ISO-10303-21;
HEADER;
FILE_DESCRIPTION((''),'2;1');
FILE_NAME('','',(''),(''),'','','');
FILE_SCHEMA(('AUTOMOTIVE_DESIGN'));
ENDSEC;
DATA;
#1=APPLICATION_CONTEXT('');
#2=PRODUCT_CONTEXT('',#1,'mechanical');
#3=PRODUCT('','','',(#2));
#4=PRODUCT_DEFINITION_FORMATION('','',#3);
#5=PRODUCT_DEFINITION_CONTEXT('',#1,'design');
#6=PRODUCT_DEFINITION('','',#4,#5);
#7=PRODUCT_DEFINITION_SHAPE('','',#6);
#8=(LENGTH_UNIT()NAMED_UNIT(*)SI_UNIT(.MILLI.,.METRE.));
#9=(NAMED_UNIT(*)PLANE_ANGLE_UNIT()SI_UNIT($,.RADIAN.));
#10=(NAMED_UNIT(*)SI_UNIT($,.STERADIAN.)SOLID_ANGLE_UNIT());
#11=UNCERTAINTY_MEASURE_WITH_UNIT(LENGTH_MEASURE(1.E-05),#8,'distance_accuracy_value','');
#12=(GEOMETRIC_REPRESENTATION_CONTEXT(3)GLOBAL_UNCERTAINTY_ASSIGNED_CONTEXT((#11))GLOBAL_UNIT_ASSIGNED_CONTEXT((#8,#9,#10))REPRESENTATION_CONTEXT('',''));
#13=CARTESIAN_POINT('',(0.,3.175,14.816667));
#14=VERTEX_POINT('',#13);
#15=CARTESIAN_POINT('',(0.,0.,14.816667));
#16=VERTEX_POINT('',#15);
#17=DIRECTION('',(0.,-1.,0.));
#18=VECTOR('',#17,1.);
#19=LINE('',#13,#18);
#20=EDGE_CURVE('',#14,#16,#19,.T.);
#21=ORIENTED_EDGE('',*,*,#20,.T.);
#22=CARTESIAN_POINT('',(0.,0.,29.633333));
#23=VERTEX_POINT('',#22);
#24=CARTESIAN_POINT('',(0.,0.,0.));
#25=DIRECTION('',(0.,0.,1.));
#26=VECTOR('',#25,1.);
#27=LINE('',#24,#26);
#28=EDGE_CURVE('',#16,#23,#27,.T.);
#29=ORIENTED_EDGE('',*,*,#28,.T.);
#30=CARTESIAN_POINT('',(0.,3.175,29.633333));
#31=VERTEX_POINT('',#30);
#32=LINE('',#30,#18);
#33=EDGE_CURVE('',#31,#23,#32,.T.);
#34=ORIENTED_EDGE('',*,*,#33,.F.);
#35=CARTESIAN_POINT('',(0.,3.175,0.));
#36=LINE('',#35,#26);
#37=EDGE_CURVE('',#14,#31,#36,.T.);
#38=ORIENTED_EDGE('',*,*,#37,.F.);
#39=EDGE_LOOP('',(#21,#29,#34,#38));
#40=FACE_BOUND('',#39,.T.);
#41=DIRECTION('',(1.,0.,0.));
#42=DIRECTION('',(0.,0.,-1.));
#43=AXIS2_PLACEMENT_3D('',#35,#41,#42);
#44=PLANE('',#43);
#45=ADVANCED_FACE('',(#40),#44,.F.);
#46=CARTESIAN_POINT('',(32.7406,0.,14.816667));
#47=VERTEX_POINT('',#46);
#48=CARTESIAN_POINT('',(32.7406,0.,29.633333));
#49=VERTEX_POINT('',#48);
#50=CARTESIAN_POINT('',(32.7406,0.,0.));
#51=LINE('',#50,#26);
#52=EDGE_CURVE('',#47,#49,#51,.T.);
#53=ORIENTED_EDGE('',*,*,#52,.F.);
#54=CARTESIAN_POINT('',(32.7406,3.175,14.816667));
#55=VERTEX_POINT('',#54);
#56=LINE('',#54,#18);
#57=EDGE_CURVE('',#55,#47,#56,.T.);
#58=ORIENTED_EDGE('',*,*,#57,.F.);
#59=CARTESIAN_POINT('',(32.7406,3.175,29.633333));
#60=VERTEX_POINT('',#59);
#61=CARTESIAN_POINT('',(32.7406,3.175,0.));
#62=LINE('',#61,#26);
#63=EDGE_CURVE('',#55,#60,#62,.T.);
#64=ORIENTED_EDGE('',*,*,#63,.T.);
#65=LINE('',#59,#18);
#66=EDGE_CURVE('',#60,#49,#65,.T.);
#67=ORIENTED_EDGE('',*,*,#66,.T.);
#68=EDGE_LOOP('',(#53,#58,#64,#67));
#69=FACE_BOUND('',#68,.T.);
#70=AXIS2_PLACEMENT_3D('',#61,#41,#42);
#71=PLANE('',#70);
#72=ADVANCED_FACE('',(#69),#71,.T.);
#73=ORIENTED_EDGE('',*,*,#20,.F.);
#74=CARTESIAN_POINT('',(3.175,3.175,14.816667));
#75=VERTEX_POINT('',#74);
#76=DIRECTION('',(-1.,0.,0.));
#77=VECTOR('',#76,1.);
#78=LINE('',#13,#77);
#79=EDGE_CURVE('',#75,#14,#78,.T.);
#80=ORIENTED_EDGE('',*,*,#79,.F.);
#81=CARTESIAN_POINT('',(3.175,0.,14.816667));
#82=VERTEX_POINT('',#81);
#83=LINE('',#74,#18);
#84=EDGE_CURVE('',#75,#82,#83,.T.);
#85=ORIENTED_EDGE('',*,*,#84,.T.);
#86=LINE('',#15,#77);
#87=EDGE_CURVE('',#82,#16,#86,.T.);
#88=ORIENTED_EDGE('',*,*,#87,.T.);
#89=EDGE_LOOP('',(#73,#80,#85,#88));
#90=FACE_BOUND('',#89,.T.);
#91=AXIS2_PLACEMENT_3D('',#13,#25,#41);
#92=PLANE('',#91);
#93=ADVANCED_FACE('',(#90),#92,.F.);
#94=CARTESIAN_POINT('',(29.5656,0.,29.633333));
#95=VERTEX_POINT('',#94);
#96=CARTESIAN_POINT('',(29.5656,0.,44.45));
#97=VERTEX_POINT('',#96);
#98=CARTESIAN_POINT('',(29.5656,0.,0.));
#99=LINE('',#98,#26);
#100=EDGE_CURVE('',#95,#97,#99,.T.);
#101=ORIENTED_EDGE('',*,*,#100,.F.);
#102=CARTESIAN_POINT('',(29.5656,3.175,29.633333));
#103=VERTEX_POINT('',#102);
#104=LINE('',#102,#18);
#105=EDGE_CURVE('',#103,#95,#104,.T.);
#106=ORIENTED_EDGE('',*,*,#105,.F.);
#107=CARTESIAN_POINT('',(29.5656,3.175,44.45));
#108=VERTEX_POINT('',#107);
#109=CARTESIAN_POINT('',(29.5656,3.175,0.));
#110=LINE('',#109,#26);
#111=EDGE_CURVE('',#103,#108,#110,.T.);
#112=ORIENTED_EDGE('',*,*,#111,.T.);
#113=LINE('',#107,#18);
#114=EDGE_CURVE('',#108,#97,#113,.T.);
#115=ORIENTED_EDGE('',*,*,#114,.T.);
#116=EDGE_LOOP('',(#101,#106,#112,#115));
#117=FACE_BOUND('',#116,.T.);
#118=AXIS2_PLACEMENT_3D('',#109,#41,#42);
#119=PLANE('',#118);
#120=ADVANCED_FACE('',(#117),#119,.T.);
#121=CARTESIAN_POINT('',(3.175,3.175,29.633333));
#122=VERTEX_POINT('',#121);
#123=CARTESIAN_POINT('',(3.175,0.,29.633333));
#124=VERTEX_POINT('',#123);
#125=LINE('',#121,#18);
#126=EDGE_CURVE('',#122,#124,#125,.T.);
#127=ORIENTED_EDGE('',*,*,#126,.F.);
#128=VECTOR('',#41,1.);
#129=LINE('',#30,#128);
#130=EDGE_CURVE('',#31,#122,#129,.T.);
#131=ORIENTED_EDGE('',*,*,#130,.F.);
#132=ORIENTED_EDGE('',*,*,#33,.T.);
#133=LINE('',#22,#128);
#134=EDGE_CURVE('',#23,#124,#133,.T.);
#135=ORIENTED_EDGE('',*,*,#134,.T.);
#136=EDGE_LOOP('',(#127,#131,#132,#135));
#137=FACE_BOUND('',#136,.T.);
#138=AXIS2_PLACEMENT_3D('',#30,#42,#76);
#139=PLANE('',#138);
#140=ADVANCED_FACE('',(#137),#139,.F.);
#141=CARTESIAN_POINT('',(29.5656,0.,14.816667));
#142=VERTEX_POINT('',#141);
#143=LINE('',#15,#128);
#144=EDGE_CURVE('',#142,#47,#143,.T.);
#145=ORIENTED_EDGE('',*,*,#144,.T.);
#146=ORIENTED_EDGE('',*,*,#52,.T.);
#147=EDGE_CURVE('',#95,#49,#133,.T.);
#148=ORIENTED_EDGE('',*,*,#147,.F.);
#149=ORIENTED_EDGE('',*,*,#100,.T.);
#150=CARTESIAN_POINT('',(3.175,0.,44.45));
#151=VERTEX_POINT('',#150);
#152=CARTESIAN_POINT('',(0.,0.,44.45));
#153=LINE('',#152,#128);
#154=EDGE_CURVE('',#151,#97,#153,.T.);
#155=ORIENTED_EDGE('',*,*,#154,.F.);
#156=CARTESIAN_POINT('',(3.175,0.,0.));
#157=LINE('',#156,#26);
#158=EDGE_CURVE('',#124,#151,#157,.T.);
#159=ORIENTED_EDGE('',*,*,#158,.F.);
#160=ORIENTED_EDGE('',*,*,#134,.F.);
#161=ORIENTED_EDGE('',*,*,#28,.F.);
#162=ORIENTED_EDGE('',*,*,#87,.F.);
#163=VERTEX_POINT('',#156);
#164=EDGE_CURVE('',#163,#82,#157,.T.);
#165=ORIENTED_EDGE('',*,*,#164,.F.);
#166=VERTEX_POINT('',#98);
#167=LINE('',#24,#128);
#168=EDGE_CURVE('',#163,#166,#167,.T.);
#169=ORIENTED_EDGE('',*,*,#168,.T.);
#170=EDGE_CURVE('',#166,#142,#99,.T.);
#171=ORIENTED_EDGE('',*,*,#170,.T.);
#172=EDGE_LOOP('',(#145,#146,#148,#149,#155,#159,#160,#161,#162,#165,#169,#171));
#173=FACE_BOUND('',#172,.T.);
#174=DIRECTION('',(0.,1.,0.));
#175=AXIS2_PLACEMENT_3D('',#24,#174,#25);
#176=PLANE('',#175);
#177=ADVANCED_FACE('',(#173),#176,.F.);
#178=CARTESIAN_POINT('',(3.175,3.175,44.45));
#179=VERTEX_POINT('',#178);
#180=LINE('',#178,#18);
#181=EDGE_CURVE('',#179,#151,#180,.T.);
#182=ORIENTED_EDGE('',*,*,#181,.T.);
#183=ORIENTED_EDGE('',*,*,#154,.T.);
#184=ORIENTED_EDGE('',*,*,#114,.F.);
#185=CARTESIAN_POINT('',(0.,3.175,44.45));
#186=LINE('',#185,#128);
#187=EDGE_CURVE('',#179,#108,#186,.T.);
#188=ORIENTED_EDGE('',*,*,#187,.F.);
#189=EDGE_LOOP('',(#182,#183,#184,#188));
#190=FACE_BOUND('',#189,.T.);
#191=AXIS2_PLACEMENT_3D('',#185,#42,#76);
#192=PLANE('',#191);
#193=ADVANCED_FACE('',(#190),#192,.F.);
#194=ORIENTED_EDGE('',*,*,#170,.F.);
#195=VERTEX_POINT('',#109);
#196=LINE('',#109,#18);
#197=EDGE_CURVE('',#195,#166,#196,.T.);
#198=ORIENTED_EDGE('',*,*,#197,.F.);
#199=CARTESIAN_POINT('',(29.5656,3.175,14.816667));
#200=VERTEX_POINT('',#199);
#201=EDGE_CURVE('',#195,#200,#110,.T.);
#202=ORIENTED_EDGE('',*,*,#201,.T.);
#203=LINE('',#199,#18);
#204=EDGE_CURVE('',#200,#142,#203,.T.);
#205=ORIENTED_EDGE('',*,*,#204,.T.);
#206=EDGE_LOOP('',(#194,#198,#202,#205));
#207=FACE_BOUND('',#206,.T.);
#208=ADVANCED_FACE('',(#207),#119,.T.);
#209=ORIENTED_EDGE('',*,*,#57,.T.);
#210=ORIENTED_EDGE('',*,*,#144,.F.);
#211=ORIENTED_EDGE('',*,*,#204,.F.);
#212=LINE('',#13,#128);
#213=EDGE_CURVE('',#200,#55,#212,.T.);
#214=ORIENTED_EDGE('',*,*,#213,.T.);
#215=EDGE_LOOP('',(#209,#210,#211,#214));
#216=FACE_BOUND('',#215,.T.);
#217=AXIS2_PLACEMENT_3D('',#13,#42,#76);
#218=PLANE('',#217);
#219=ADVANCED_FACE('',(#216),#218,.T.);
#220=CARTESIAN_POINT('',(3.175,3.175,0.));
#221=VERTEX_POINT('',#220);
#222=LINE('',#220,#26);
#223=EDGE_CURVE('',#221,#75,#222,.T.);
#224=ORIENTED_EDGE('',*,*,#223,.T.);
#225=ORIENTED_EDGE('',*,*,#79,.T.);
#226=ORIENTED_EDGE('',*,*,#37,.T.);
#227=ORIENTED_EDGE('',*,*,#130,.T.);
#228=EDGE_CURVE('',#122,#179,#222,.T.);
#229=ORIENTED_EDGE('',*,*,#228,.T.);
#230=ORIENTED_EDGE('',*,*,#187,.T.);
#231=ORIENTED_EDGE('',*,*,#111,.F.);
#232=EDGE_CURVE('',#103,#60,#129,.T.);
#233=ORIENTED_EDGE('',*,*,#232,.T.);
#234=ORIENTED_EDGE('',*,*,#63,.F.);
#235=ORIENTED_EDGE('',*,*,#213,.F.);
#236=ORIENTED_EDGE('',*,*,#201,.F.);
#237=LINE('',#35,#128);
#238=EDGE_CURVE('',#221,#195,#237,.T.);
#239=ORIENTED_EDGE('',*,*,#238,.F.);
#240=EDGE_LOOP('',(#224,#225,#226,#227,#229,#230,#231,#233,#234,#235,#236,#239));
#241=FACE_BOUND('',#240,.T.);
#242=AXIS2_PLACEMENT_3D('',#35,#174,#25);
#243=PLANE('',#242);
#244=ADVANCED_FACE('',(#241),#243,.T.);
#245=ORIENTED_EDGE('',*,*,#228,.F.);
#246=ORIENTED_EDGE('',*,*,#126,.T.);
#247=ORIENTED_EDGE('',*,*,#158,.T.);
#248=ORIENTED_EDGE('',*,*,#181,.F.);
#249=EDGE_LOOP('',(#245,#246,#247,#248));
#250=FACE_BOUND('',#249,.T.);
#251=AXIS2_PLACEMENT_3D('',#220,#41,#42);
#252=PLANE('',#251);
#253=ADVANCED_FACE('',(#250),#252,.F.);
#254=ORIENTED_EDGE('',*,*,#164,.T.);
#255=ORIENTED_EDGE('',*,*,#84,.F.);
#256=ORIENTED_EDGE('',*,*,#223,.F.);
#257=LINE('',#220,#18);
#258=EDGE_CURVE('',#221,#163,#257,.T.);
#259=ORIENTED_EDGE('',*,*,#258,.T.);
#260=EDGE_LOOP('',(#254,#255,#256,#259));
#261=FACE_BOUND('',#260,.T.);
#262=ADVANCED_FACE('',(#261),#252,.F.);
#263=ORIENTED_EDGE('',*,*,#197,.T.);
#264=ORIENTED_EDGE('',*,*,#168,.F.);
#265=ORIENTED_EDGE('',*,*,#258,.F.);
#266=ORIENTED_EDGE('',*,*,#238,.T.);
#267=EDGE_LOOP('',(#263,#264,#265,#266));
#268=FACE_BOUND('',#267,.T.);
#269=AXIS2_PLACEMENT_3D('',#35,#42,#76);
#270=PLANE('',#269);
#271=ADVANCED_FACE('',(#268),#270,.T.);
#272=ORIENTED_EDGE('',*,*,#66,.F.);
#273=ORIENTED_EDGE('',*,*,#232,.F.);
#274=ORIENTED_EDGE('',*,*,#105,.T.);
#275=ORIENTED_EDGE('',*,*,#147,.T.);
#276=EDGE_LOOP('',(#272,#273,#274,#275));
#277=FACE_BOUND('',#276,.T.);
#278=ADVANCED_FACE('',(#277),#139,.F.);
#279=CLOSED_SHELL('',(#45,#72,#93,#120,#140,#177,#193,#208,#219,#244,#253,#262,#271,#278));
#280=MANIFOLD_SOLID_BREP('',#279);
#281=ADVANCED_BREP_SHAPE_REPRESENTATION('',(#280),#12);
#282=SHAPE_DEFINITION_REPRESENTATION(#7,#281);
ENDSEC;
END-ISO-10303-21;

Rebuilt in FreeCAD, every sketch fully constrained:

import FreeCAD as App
import Part
import Sketcher
from FreeCAD import Vector
Q = App.Units.Quantity


def add_polygon(sketch, points):
    """Adds a closed chain of lines whose ends are joined by coincident constraints."""
    first, n = sketch.GeometryCount, len(points)
    for a, b in zip(points, points[1:] + points[:1]):
        sketch.addGeometry(Part.LineSegment(App.Vector(*a, 0), App.Vector(*b, 0)), False)
    for i in range(n):
        sketch.addConstraint(Sketcher.Constraint("Coincident", first + i, 2, first + (i + 1) % n, 1))

doc = App.newDocument("Part")
body = doc.addObject("PartDesign::Body", "Body")

# Sketch on XZ plane
sketch1 = body.newObject("Sketcher::SketchObject", "Sketch")
sketch1.AttachmentSupport = (doc.getObject("XZ_Plane"), [""])
sketch1.MapMode = "FlatFace"
add_polygon(sketch1, [(3.2, 0), (3.2, 14.8), (0, 14.8), (0, 29.6), (3.2, 29.6), (3.2, 44.5), (29.6, 44.5), (29.6, 29.6), (32.7, 29.6), (32.7, 14.8), (29.6, 14.8), (29.6, 0)])  # lines 0-11
sketch1.addConstraint([
    Sketcher.Constraint("Vertical", 0),
    Sketcher.Constraint("Horizontal", 1),
    Sketcher.Constraint("Vertical", 2),
    Sketcher.Constraint("Horizontal", 3),
    Sketcher.Constraint("Vertical", 4),
    Sketcher.Constraint("Horizontal", 5),
    Sketcher.Constraint("Vertical", 6),
    Sketcher.Constraint("Horizontal", 7),
    Sketcher.Constraint("Vertical", 8),
    Sketcher.Constraint("Horizontal", 9),
    Sketcher.Constraint("Vertical", 10),
    Sketcher.Constraint("Horizontal", 11),
    Sketcher.Constraint("PointOnObject", 1, 2, -2),
    Sketcher.Constraint("PointOnObject", 10, 2, -1),
    Sketcher.Constraint("Horizontal", 3, 2, 6, 2),
    Sketcher.Constraint("Horizontal", 1, 2, 8, 2),
    Sketcher.Constraint("Vertical", 0, 2, 3, 2),
    Sketcher.Constraint("Vertical", 6, 2, 9, 2),
    Sketcher.Constraint("Equal", 3, 7),
    Sketcher.Constraint("Equal", 0, 2),
    Sketcher.Constraint("Equal", 2, 4),
    Sketcher.Constraint("DistanceX", 1, 2, 1, 1, Q("0.125 in")),
    Sketcher.Constraint("DistanceX", 5, 1, 5, 2, Q("1.039 in")),
    Sketcher.Constraint("DistanceY", -1, 1, 4, 2, Q("1.75 in")),
])
pad1 = body.newObject("PartDesign::Pad", "Pad")
pad1.Profile = sketch1
pad1.Length = Q("0.125 in")
pad1.Reversed = True

doc.recompute()
